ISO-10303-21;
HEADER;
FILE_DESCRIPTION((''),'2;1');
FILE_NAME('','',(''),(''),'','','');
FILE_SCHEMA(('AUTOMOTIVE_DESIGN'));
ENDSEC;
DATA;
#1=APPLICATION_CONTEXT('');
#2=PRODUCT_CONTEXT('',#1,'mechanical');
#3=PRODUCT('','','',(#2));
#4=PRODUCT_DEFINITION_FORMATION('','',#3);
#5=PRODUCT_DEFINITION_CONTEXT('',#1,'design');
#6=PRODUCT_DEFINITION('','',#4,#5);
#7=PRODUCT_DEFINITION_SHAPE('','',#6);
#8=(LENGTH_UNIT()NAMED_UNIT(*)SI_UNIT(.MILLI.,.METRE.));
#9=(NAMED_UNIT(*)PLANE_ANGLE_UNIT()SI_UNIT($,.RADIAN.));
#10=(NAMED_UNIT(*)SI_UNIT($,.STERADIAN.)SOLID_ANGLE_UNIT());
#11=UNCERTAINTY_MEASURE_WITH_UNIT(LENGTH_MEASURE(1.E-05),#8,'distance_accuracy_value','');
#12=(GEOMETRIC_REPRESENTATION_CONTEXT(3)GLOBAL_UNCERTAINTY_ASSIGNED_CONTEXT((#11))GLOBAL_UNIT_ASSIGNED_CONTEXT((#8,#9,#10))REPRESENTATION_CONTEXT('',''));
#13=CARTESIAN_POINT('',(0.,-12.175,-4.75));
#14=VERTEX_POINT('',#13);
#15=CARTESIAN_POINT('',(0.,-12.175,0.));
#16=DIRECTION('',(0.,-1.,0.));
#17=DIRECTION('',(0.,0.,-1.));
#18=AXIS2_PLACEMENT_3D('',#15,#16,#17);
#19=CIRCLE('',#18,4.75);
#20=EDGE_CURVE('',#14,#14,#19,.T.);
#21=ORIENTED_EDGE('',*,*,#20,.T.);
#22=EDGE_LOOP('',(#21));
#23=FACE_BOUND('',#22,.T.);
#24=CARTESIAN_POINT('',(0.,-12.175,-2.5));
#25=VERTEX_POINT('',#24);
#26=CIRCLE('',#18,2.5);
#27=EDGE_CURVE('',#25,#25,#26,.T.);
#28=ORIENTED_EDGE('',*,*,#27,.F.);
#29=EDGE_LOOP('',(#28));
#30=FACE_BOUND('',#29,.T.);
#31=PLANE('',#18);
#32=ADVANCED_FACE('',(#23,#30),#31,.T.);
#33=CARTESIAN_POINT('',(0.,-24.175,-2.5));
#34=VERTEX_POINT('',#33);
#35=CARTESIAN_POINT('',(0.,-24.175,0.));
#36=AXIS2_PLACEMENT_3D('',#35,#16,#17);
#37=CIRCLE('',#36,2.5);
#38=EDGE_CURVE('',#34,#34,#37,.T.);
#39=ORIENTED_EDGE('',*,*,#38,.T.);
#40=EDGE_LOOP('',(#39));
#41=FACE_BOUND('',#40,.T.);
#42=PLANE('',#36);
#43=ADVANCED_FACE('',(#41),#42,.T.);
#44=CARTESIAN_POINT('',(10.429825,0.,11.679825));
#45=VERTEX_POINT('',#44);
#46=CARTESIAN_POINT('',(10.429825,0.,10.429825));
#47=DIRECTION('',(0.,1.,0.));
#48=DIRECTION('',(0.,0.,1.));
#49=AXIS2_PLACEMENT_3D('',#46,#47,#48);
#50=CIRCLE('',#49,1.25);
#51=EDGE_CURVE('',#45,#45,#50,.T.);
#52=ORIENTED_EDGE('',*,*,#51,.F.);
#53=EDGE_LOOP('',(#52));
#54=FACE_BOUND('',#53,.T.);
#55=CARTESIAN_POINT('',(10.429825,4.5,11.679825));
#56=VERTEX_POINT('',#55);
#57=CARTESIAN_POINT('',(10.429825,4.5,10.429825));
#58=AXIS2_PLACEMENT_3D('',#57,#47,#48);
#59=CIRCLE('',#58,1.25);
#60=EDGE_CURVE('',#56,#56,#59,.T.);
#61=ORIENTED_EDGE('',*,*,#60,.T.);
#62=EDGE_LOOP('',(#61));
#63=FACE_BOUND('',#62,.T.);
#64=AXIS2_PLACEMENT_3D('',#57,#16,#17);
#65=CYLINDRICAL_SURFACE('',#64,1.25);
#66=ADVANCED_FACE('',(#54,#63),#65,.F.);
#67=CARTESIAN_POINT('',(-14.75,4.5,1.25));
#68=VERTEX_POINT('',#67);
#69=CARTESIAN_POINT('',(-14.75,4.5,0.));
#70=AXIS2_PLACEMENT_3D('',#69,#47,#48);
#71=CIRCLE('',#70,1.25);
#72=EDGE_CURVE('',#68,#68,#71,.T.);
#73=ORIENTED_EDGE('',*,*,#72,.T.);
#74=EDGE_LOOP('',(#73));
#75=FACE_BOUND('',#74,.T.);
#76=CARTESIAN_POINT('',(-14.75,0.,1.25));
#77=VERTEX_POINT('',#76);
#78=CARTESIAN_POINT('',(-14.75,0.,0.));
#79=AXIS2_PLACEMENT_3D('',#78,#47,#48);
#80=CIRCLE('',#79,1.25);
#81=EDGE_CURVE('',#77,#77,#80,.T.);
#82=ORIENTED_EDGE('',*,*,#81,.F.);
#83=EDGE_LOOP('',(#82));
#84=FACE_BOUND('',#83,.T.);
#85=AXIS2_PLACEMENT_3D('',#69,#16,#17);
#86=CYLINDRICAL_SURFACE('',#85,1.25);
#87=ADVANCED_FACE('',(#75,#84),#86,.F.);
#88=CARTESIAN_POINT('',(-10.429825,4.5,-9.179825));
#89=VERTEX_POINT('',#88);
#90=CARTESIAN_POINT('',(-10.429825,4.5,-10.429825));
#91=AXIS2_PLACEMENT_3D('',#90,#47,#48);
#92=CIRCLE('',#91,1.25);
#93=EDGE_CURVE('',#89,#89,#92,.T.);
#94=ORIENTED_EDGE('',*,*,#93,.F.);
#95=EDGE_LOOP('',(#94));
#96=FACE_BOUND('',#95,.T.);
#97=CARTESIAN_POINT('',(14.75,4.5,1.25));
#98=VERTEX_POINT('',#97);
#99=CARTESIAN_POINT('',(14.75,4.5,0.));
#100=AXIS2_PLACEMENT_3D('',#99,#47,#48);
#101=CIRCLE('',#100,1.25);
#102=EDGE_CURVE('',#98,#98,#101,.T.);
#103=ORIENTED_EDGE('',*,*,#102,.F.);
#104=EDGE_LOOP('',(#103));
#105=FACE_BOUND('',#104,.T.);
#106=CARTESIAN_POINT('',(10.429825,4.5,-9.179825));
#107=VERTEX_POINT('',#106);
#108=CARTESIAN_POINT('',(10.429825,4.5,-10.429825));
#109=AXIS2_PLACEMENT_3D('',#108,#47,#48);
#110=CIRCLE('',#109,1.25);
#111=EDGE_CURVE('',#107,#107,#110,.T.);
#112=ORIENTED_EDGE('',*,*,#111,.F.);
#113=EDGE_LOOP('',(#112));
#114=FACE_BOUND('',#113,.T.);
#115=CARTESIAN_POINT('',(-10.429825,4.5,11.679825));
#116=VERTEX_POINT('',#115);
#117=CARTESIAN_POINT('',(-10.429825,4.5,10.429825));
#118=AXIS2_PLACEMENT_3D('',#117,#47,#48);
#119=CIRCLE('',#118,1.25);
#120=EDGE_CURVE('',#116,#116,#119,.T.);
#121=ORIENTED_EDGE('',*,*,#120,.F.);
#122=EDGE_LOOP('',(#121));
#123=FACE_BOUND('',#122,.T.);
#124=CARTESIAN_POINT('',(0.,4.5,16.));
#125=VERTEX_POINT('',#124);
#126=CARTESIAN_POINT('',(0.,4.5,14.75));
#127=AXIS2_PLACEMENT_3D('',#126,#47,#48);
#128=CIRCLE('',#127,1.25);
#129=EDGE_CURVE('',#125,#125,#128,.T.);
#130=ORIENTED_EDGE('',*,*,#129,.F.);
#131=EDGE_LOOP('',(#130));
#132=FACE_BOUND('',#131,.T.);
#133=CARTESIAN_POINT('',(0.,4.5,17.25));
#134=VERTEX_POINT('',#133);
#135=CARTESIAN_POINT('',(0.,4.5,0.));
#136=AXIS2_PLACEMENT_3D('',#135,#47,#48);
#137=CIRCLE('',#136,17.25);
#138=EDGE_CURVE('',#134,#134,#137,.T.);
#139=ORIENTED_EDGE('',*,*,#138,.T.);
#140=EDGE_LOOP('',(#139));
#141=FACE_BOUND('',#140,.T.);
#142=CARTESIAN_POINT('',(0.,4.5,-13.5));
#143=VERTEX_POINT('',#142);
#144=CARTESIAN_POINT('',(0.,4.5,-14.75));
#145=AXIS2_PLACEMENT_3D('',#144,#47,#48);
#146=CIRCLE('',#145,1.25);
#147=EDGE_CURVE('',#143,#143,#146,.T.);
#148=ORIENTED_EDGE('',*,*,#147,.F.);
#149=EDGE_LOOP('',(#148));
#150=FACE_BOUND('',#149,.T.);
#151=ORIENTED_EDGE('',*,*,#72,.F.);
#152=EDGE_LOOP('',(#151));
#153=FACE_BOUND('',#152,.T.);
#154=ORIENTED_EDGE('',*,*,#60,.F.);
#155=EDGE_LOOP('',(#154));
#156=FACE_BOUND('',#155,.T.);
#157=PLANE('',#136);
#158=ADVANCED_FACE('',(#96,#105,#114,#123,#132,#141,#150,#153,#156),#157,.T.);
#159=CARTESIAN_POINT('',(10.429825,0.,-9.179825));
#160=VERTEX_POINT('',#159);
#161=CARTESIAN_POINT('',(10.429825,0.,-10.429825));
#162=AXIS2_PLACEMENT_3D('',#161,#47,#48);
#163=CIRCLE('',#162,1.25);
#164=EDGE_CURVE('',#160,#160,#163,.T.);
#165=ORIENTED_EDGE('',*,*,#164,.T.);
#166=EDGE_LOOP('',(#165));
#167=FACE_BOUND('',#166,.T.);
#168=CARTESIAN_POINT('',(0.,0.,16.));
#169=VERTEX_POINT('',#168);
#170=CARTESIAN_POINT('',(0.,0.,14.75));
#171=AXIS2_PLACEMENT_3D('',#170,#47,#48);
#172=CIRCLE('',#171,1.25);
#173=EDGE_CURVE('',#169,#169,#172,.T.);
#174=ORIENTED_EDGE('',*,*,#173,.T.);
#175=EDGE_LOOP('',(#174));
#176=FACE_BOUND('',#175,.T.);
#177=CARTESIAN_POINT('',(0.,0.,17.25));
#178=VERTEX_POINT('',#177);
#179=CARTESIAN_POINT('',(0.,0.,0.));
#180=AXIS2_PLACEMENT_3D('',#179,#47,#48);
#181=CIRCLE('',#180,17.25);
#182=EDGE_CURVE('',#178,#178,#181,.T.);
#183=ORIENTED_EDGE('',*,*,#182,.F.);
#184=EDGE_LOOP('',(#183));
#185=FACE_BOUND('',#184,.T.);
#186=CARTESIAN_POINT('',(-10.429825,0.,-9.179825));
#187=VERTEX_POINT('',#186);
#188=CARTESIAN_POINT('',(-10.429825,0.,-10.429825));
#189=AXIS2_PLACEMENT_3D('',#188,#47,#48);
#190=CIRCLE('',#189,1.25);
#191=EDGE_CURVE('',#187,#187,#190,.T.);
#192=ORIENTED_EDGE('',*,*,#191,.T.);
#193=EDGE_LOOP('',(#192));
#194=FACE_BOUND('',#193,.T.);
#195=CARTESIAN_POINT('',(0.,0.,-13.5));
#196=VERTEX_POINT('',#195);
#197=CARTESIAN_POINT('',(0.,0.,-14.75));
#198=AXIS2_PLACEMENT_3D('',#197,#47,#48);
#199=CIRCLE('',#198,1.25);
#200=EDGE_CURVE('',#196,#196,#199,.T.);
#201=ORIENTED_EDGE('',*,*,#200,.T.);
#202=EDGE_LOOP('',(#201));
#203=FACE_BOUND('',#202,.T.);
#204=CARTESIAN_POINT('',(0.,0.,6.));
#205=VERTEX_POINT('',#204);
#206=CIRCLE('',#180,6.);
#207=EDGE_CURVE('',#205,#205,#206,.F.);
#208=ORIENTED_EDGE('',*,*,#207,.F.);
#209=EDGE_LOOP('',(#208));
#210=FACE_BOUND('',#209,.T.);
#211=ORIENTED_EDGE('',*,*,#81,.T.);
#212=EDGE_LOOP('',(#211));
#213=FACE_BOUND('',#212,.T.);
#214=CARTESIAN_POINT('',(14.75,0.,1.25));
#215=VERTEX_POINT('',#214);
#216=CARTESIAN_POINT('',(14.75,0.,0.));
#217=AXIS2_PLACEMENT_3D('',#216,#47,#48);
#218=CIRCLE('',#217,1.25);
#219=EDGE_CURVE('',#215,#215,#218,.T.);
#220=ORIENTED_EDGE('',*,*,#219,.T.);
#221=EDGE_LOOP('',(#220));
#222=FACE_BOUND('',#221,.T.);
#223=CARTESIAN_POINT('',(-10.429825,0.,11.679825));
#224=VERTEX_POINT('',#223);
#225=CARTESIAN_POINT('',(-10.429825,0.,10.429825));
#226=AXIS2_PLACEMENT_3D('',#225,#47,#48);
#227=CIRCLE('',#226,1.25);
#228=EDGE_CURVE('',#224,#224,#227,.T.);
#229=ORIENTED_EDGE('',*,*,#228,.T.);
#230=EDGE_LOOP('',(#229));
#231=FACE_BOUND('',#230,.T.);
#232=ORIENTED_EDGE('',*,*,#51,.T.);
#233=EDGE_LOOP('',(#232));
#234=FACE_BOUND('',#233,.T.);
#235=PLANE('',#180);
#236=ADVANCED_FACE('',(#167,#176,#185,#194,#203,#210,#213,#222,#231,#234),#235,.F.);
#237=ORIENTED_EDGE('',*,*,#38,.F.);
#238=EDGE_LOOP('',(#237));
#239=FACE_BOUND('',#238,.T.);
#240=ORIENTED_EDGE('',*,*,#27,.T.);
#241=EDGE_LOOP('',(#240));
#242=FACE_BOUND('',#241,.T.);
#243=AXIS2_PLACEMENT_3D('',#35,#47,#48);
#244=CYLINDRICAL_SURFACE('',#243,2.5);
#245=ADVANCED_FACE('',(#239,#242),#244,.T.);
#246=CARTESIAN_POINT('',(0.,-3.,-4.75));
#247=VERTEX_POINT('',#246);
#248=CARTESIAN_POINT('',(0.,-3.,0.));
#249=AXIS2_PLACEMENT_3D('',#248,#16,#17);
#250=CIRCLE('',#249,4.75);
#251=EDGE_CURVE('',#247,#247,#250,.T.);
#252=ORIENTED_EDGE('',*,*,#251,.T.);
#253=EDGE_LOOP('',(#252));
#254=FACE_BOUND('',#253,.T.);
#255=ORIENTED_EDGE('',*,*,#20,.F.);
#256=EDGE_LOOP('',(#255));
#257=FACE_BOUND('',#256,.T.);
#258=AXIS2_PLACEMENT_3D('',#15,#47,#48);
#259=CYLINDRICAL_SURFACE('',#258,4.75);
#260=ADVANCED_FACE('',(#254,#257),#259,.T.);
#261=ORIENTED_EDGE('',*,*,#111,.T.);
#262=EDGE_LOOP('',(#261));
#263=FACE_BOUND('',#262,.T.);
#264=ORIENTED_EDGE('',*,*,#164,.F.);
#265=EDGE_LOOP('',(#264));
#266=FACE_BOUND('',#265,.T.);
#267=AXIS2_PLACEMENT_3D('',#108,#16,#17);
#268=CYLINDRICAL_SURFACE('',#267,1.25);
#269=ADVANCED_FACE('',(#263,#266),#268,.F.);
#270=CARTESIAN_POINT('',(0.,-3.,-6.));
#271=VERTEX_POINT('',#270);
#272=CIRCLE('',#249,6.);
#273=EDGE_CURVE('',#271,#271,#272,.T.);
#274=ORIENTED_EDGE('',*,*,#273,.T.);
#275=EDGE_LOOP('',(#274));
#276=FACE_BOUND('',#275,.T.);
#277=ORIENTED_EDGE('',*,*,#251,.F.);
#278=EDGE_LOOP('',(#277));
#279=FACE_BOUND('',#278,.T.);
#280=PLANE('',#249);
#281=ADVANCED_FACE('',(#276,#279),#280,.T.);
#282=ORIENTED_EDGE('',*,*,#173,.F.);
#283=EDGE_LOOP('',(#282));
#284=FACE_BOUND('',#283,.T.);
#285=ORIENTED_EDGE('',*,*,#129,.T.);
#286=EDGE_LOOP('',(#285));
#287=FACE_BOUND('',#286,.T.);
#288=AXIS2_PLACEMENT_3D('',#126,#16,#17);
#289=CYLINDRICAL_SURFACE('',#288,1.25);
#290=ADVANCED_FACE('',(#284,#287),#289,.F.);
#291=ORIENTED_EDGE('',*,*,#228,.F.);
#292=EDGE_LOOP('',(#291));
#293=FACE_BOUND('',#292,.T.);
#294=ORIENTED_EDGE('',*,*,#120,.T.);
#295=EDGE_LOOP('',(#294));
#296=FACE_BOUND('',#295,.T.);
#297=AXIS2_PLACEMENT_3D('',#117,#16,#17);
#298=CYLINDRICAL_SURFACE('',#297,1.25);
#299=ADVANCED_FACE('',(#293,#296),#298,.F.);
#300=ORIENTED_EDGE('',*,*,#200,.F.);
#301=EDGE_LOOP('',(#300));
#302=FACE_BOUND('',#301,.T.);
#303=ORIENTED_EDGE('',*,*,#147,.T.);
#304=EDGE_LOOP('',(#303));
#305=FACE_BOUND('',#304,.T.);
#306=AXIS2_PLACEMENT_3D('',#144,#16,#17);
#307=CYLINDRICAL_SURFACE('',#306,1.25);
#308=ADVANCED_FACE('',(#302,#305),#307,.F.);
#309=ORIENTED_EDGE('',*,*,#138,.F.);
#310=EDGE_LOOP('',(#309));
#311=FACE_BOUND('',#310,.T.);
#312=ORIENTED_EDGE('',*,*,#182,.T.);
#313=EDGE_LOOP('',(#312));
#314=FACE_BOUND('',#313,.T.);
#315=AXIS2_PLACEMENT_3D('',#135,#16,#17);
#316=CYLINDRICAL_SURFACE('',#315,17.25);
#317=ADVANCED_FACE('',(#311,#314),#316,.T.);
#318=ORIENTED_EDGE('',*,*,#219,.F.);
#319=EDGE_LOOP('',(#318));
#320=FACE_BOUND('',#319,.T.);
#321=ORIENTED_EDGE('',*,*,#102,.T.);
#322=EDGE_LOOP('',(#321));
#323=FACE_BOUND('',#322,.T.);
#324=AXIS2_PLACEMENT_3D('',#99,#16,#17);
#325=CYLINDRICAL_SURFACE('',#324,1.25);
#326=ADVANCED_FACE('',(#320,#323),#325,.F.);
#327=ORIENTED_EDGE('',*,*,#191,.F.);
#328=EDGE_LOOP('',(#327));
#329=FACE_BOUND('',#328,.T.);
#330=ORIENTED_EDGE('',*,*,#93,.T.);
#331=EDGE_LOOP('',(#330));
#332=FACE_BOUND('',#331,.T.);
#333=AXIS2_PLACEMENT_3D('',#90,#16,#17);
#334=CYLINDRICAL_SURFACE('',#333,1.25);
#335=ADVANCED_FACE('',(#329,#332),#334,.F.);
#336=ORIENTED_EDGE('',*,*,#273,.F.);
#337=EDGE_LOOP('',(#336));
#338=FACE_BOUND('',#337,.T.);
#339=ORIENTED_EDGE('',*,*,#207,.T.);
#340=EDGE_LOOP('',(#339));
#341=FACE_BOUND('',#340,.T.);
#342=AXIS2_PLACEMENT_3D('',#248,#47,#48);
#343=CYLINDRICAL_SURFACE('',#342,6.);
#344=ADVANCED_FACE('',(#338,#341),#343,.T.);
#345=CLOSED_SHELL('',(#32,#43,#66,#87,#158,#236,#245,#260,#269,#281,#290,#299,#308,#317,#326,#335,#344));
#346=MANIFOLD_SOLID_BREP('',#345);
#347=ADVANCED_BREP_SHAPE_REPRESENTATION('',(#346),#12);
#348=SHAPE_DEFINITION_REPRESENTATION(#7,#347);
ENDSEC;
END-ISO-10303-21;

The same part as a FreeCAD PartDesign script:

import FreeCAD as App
import Part
import Sketcher

V = App.Vector
Q = App.Units.Quantity

doc = App.newDocument("Part")
params = doc.addObject("Spreadsheet::Sheet", "Params")
for row, (alias, value) in enumerate([
    ("sketch1_diameter", "34.5 mm"),
    ("sketch1_diameter2", "2.5 mm"),
    ("pad1_length", "4.5 mm"),
    ("sketch2_diameter", "9.5 mm"),
    ("pad2_length", "12.175 mm"),
    ("sketch3_diameter", "12 mm"),
    ("pad3_length", "3 mm"),
    ("sketch4_diameter", "5 mm"),
    ("pad4_length", "12 mm"),
], start=1):
    params.set(f"A{row}", alias)
    params.set(f"B{row}", "=" + value)
    params.setAlias(f"B{row}", alias)

body = doc.addObject("PartDesign::Body", "Body")

# Sketch on XZ plane
sketch1 = body.newObject("Sketcher::SketchObject", "Sketch")
sketch1.AttachmentSupport = (doc.getObject("XZ_Plane"), [""])
sketch1.MapMode = "FlatFace"
sketch1.addGeometry(Part.Circle(V(0, 0, 0), V(0, 0, 1), 17.2), False)
sketch1.addGeometry(Part.Circle(V(-10.4, 10.4, 0), V(0, 0, 1), 1.2), False)
sketch1.addGeometry(Part.Circle(V(0, 14.8, 0), V(0, 0, 1), 1.2), False)
sketch1.addGeometry(Part.Circle(V(10.4, 10.4, 0), V(0, 0, 1), 1.2), False)
sketch1.addGeometry(Part.Circle(V(-14.8, 0, 0), V(0, 0, 1), 1.2), False)
sketch1.addGeometry(Part.Circle(V(-10.4, -10.4, 0), V(0, 0, 1), 1.2), False)
sketch1.addGeometry(Part.Circle(V(14.8, 0, 0), V(0, 0, 1), 1.2), False)
sketch1.addGeometry(Part.Circle(V(0, -14.8, 0), V(0, 0, 1), 1.2), False)
sketch1.addGeometry(Part.Circle(V(10.4, -10.4, 0), V(0, 0, 1), 1.2), False)
sketch1.addConstraint(Sketcher.Constraint("Coincident", 0, 3, -1, 1))
sketch1.addConstraint(Sketcher.Constraint("Equal", 1, 2))
sketch1.addConstraint(Sketcher.Constraint("Equal", 2, 3))
sketch1.addConstraint(Sketcher.Constraint("Equal", 3, 4))
sketch1.addConstraint(Sketcher.Constraint("Equal", 4, 5))
sketch1.addConstraint(Sketcher.Constraint("Equal", 5, 6))
sketch1.addConstraint(Sketcher.Constraint("Equal", 6, 7))
sketch1.addConstraint(Sketcher.Constraint("Equal", 7, 8))
sketch1.addConstraint(Sketcher.Constraint("Symmetric", 3, 3, 5, 3, -1, 1))
sketch1.addConstraint(Sketcher.Constraint("Symmetric", 4, 3, 6, 3, -1, 1))
sketch1.addConstraint(Sketcher.Constraint("Symmetric", 2, 3, 7, 3, -1, 1))
sketch1.addConstraint(Sketcher.Constraint("Symmetric", 1, 3, 8, 3, -1, 1))
sketch1.addConstraint(Sketcher.Constraint("Symmetric", 1, 3, 3, 3, -2))
sketch1.addConstraint(Sketcher.Constraint("PointOnObject", 2, 3, -2))
sketch1.addConstraint(Sketcher.Constraint("PointOnObject", 4, 3, -1))
sketch1.addConstraint(Sketcher.Constraint("Diameter", 0, Q("34.5 mm")))
sketch1.addConstraint(Sketcher.Constraint("Diameter", 1, Q("2.5 mm")))
sketch1.addConstraint(Sketcher.Constraint("DistanceY", -1, 1, 2, 3, Q("14.75 mm")))
sketch1.addConstraint(Sketcher.Constraint("DistanceX", 4, 3, -1, 1, Q("14.75 mm")))
sketch1.addConstraint(Sketcher.Constraint("DistanceX", 1, 3, 3, 3, Q("20.85965 mm")))
sketch1.addConstraint(Sketcher.Constraint("DistanceY", 5, 3, 1, 3, Q("20.85965 mm")))
sketch1.setExpression("Constraints[15]", "Params.sketch1_diameter")
sketch1.setExpression("Constraints[16]", "Params.sketch1_diameter2")
pad1 = body.newObject("PartDesign::Pad", "Pad")
pad1.Profile = sketch1
pad1.setExpression("Length", "Params.pad1_length")
pad1.Reversed = True

# Sketch on XZ plane
sketch2 = body.newObject("Sketcher::SketchObject", "Sketch001")
sketch2.AttachmentSupport = (doc.getObject("XZ_Plane"), [""])
sketch2.MapMode = "FlatFace"
sketch2.addGeometry(Part.Circle(V(0, 0, 0), V(0, 0, 1), 4.8), False)
sketch2.addConstraint(Sketcher.Constraint("Coincident", 0, 3, -1, 1))
sketch2.addConstraint(Sketcher.Constraint("Diameter", 0, Q("9.5 mm")))
sketch2.setExpression("Constraints[1]", "Params.sketch2_diameter")
pad2 = body.newObject("PartDesign::Pad", "Pad001")
pad2.Profile = sketch2
pad2.setExpression("Length", "Params.pad2_length")

# Sketch on XZ plane
sketch3 = body.newObject("Sketcher::SketchObject", "Sketch002")
sketch3.AttachmentSupport = (doc.getObject("XZ_Plane"), [""])
sketch3.MapMode = "FlatFace"
sketch3.addGeometry(Part.Circle(V(0, 0, 0), V(0, 0, 1), 6), False)
sketch3.addConstraint(Sketcher.Constraint("Coincident", 0, 3, -1, 1))
sketch3.addConstraint(Sketcher.Constraint("Diameter", 0, Q("12 mm")))
sketch3.setExpression("Constraints[1]", "Params.sketch3_diameter")
pad3 = body.newObject("PartDesign::Pad", "Pad002")
pad3.Profile = sketch3
pad3.setExpression("Length", "Params.pad3_length")

# Sketch on XZ plane
sketch4 = body.newObject("Sketcher::SketchObject", "Sketch003")
sketch4.AttachmentSupport = (doc.getObject("XZ_Plane"), [""])
sketch4.MapMode = "FlatFace"
sketch4.AttachmentOffset = App.Placement(V(0, 0, 12.175), App.Rotation())
sketch4.addGeometry(Part.Circle(V(0, 0, 0), V(0, 0, 1), 2.5), False)
sketch4.addConstraint(Sketcher.Constraint("Coincident", 0, 3, -1, 1))
sketch4.addConstraint(Sketcher.Constraint("Diameter", 0, Q("5 mm")))
sketch4.setExpression("Constraints[1]", "Params.sketch4_diameter")
pad4 = body.newObject("PartDesign::Pad", "Pad003")
pad4.Profile = sketch4
pad4.setExpression("Length", "Params.pad4_length")

doc.recompute()
